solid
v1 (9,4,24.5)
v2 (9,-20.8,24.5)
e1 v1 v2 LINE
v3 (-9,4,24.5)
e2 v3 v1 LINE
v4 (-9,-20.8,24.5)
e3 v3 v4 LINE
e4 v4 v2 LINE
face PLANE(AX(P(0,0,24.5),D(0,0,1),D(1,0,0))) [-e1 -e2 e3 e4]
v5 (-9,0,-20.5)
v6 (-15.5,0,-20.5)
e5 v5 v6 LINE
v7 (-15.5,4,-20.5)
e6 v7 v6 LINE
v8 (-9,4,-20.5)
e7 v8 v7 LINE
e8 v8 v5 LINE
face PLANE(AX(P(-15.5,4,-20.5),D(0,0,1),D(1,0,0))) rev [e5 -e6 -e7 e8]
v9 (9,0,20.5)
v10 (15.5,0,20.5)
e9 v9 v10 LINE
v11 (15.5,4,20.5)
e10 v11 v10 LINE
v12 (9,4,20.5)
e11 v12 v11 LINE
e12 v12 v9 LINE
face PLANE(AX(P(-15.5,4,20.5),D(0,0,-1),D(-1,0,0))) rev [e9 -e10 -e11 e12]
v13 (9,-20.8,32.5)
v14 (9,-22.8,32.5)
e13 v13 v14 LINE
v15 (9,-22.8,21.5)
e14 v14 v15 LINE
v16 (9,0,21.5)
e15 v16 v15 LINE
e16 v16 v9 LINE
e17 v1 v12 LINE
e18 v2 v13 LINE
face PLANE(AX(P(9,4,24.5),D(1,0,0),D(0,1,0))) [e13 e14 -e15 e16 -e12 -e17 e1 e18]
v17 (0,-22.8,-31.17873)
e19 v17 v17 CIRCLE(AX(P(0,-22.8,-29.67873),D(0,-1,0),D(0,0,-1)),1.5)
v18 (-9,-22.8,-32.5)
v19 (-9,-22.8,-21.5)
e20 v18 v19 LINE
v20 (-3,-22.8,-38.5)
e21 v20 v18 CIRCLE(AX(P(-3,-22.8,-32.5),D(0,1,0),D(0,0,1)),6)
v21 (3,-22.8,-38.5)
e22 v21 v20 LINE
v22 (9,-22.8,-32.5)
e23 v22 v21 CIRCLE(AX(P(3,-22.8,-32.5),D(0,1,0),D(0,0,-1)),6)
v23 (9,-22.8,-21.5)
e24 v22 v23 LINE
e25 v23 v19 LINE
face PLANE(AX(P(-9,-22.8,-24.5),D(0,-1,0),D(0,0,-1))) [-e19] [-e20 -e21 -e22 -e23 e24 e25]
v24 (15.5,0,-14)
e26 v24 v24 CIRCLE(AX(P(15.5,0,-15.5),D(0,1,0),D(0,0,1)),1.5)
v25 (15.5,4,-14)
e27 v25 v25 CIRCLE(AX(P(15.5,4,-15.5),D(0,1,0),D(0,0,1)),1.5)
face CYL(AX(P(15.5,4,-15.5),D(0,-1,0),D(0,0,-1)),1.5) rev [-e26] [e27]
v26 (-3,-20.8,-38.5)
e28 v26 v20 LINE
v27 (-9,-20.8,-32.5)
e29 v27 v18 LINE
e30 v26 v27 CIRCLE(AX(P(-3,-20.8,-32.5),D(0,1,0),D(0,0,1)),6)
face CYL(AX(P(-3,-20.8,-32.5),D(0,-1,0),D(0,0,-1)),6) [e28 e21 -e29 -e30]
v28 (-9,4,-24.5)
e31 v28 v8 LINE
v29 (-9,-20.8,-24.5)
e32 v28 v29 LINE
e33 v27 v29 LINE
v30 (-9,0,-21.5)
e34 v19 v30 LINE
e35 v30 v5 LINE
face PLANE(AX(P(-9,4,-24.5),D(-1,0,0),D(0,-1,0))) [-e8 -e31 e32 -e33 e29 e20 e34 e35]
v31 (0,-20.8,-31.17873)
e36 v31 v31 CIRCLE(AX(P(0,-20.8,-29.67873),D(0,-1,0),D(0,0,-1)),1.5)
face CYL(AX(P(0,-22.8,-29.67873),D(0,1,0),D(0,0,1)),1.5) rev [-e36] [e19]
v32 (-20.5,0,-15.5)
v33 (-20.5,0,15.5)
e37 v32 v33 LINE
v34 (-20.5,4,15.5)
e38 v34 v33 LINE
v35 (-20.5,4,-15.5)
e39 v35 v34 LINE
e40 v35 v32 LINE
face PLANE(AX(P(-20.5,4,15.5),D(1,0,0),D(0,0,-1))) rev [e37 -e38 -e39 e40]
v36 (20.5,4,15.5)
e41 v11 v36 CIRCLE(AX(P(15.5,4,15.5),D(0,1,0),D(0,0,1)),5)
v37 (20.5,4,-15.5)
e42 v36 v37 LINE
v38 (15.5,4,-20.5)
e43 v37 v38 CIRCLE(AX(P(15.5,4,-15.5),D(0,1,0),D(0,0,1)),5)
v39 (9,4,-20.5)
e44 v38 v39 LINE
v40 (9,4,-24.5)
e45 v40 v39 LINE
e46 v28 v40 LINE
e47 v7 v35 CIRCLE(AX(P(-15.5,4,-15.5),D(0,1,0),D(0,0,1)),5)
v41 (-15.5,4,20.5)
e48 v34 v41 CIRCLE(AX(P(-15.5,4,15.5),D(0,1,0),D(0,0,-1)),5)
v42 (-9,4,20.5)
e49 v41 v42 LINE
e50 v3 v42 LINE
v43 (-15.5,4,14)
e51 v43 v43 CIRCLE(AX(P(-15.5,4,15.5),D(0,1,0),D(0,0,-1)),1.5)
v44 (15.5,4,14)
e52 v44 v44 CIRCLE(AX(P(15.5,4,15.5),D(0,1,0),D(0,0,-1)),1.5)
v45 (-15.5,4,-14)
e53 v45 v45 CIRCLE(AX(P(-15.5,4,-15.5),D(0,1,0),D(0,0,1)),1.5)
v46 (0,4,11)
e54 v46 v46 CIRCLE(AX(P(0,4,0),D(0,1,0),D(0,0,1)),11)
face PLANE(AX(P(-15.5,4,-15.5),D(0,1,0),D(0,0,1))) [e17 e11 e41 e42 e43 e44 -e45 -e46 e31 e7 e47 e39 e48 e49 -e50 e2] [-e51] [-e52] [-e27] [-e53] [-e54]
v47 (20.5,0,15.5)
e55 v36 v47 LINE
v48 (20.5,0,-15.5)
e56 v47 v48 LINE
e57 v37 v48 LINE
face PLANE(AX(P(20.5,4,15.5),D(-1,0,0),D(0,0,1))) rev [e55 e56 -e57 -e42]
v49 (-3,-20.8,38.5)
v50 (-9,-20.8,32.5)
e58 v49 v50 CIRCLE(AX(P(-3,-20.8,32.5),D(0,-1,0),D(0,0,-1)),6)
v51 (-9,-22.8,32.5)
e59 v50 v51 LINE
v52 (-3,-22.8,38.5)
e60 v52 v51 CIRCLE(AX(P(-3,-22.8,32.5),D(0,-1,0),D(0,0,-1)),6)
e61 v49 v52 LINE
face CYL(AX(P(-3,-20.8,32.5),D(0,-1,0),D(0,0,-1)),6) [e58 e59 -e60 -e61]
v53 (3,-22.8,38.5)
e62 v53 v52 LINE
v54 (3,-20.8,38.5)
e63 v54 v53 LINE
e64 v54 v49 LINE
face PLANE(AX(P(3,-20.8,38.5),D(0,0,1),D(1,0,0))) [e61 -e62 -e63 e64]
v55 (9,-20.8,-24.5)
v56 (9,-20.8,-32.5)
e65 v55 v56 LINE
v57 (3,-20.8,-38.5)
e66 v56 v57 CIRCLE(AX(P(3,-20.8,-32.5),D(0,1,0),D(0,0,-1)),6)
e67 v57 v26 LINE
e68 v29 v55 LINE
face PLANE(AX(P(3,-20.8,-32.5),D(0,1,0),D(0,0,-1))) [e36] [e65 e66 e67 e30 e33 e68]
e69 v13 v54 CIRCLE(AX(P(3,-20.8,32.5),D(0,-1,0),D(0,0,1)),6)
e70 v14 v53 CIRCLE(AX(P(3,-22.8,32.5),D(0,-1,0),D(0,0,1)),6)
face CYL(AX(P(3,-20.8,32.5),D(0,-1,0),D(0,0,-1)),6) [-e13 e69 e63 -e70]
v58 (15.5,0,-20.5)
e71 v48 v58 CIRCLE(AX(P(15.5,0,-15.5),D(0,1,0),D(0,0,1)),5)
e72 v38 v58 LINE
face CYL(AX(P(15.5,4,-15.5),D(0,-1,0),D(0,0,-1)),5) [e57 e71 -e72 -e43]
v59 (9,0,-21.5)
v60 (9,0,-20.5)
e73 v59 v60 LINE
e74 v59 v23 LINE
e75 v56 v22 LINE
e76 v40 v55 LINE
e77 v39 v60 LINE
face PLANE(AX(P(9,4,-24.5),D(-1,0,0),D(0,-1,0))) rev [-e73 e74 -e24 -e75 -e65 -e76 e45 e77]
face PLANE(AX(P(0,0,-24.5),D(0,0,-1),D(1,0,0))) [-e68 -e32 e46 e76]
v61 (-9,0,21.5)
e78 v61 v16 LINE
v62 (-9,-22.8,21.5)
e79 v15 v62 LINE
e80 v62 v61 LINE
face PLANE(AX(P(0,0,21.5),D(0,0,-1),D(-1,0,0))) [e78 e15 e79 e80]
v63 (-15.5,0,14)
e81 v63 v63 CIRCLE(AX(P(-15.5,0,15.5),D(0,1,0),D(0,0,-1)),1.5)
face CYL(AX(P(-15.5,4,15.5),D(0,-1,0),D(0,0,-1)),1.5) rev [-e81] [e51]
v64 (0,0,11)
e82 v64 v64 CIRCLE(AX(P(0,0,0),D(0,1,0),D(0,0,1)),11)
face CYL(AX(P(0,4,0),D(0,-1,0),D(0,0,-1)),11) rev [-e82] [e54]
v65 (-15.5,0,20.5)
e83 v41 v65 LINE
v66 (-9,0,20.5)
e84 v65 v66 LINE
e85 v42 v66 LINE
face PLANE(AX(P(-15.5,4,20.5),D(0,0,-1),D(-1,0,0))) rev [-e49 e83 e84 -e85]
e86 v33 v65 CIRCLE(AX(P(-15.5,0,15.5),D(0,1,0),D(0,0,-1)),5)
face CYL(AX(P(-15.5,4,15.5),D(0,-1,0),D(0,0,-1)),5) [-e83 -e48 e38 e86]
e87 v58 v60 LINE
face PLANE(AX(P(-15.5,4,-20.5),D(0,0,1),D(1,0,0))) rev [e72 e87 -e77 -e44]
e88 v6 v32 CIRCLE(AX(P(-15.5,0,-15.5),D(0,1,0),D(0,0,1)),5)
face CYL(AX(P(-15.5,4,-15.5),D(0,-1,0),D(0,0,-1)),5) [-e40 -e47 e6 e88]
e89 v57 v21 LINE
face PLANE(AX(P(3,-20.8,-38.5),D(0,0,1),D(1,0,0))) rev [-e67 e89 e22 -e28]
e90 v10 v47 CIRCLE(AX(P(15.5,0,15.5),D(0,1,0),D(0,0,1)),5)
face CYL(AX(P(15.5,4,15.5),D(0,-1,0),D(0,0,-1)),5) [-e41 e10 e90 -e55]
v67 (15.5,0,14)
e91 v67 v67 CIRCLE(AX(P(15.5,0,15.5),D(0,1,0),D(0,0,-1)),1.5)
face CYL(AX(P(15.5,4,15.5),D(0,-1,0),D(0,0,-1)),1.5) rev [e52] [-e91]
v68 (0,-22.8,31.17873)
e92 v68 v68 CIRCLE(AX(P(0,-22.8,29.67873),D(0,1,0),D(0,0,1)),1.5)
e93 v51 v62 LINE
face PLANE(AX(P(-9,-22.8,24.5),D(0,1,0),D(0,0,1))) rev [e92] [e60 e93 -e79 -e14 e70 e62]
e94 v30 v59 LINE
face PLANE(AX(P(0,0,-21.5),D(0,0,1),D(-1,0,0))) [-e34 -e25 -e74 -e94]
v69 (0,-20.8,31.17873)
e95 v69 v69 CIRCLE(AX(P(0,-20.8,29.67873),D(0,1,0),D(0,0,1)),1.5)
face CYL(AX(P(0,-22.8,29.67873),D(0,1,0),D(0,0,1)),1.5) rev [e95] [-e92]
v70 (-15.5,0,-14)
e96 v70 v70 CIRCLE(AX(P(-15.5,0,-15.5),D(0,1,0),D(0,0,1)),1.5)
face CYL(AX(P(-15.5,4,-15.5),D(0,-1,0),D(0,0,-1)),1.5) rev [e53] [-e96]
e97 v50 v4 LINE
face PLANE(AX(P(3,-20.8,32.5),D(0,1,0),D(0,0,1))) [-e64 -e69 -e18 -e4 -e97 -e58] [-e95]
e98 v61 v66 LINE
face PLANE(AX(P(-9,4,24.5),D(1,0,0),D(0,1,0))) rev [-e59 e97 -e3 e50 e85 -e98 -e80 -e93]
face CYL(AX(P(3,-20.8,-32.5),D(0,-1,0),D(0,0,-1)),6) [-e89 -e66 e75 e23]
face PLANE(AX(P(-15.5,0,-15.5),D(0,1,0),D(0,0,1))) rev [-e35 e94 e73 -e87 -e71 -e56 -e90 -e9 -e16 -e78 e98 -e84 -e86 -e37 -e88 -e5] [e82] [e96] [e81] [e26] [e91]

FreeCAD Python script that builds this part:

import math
import FreeCAD as App
import Part
import Sketcher

V = App.Vector
Q = App.Units.Quantity

doc = App.newDocument("Part")
body = doc.addObject("PartDesign::Body", "Body")

# Sketch on XZ plane
sketch1 = body.newObject("Sketcher::SketchObject", "Sketch")
sketch1.AttachmentSupport = (doc.getObject("XZ_Plane"), [""])
sketch1.MapMode = "FlatFace"
sketch1.addGeometry([
    Part.LineSegment(V(-15.5, 20.5, 0), V(15.5, 20.5, 0)),  # 0
    Part.ArcOfCircle(Part.Circle(V(15.5, 15.5, 0), V(0, 0, 1), 5), math.radians(0), math.radians(90)),  # 1
    Part.LineSegment(V(20.5, 15.5, 0), V(20.5, -15.5, 0)),  # 2
    Part.ArcOfCircle(Part.Circle(V(15.5, -15.5, 0), V(0, 0, 1), 5), math.radians(-90), math.radians(0)),  # 3
    Part.LineSegment(V(15.5, -20.5, 0), V(-15.5, -20.5, 0)),  # 4
    Part.ArcOfCircle(Part.Circle(V(-15.5, -15.5, 0), V(0, 0, 1), 5), math.radians(180), math.radians(270)),  # 5
    Part.LineSegment(V(-20.5, -15.5, 0), V(-20.5, 15.5, 0)),  # 6
    Part.ArcOfCircle(Part.Circle(V(-15.5, 15.5, 0), V(0, 0, 1), 5), math.radians(90), math.radians(180)),  # 7
    Part.Circle(V(-15.5, 15.5, 0), V(0, 0, 1), 1.5),  # 8
    Part.Circle(V(15.5, 15.5, 0), V(0, 0, 1), 1.5),  # 9
    Part.Circle(V(-15.5, -15.5, 0), V(0, 0, 1), 1.5),  # 10
    Part.Circle(V(0, 0, 0), V(0, 0, 1), 11),  # 11
    Part.Circle(V(15.5, -15.5, 0), V(0, 0, 1), 1.5),  # 12
], False)
sketch1.addConstraint([
    Sketcher.Constraint("Tangent", 0, 2, 1, 2),
    Sketcher.Constraint("Tangent", 1, 1, 2, 1),
    Sketcher.Constraint("Tangent", 2, 2, 3, 2),
    Sketcher.Constraint("Tangent", 3, 1, 4, 1),
    Sketcher.Constraint("Tangent", 4, 2, 5, 2),
    Sketcher.Constraint("Tangent", 5, 1, 6, 1),
    Sketcher.Constraint("Tangent", 6, 2, 7, 2),
    Sketcher.Constraint("Tangent", 7, 1, 0, 1),
    Sketcher.Constraint("Horizontal", 0),
    Sketcher.Constraint("Vertical", 2),
    Sketcher.Constraint("Horizontal", 4),
    Sketcher.Constraint("Vertical", 6),
    Sketcher.Constraint("Coincident", 11, 3, -1, 1),
    Sketcher.Constraint("Coincident", 8, 3, 7, 3),
    Sketcher.Constraint("Coincident", 9, 3, 1, 3),
    Sketcher.Constraint("Coincident", 10, 3, 5, 3),
    Sketcher.Constraint("Coincident", 12, 3, 3, 3),
    Sketcher.Constraint("Equal", 1, 3),
    Sketcher.Constraint("Equal", 3, 5),
    Sketcher.Constraint("Equal", 5, 7),
    Sketcher.Constraint("Equal", 8, 9),
    Sketcher.Constraint("Equal", 9, 10),
    Sketcher.Constraint("Equal", 10, 12),
    Sketcher.Constraint("Symmetric", 1, 3, 5, 3, -1, 1),
    Sketcher.Constraint("Equal", 4, 2),
    Sketcher.Constraint("Diameter", 8, Q("3 mm")),
    Sketcher.Constraint("Diameter", 11, Q("22 mm")),
    Sketcher.Constraint("Radius", 1, Q("5 mm")),
    Sketcher.Constraint("DistanceX", 0, 1, 0, 2, Q("31 mm")),
])
pad1 = body.newObject("PartDesign::Pad", "Pad")
pad1.Profile = sketch1
pad1.Length = 4
pad1.Reversed = True

# Sketch on XY plane
sketch2 = body.newObject("Sketcher::SketchObject", "Sketch001")
sketch2.AttachmentSupport = (doc.getObject("XY_Plane"), [""])
sketch2.MapMode = "FlatFace"
sketch2.AttachmentOffset = App.Placement(V(0, 0, 20.5), App.Rotation())
sketch2.addGeometry([
    Part.LineSegment(V(-9, 4, 0), V(-9, -23, 0)),
    Part.LineSegment(V(-9, -23, 0), V(9, -23, 0)),
    Part.LineSegment(V(9, -23, 0), V(9, 4, 0)),
    Part.LineSegment(V(9, 4, 0), V(-9, 4, 0)),
], False)
sketch2.addConstraint([
    Sketcher.Constraint("Coincident", 0, 2, 1, 1),
    Sketcher.Constraint("Coincident", 1, 2, 2, 1),
    Sketcher.Constraint("Coincident", 2, 2, 3, 1),
    Sketcher.Constraint("Coincident", 3, 2, 0, 1),
    Sketcher.Constraint("Vertical", 0),
    Sketcher.Constraint("Horizontal", 1),
    Sketcher.Constraint("Vertical", 2),
    Sketcher.Constraint("Horizontal", 3),
    Sketcher.Constraint("DistanceX", 1, 1, 1, 2, Q("18 mm")),
    Sketcher.Constraint("DistanceY", 0, 2, 0, 1, Q("26.8 mm")),
    Sketcher.Constraint("DistanceX", 0, 2, -1, 1, Q("9 mm")),
    Sketcher.Constraint("DistanceY", -1, 1, 2, 2, Q("4 mm")),
])
pad2 = body.newObject("PartDesign::Pad", "Pad001")
pad2.Profile = sketch2
pad2.Length = 4

# Sketch on XZ plane
sketch3 = body.newObject("Sketcher::SketchObject", "Sketch002")
sketch3.AttachmentSupport = (doc.getObject("XZ_Plane"), [""])
sketch3.MapMode = "FlatFace"
sketch3.AttachmentOffset = App.Placement(V(0, 0, 22.8), App.Rotation())
sketch3.addGeometry([
    Part.LineSegment(V(-9, 24, 0), V(9, 24, 0)),  # 0
    Part.LineSegment(V(9, 24, 0), V(9, 32, 0)),  # 1
    Part.ArcOfCircle(Part.Circle(V(3, 32, 0), V(0, 0, 1), 6), math.radians(0), math.radians(90)),  # 2
    Part.LineSegment(V(3, 38, 0), V(-3, 38, 0)),  # 3
    Part.ArcOfCircle(Part.Circle(V(-3, 32, 0), V(0, 0, 1), 6), math.radians(90), math.radians(180)),  # 4
    Part.LineSegment(V(-9, 32, 0), V(-9, 24, 0)),  # 5
], False)
sketch3.addConstraint([
    Sketcher.Constraint("Coincident", 0, 2, 1, 1),
    Sketcher.Constraint("Tangent", 1, 2, 2, 1),
    Sketcher.Constraint("Tangent", 2, 2, 3, 1),
    Sketcher.Constraint("Tangent", 3, 2, 4, 1),
    Sketcher.Constraint("Tangent", 4, 2, 5, 1),
    Sketcher.Constraint("Coincident", 5, 2, 0, 1),
    Sketcher.Constraint("Horizontal", 0),
    Sketcher.Constraint("Vertical", 1),
    Sketcher.Constraint("Horizontal", 3),
    Sketcher.Constraint("Vertical", 5),
    Sketcher.Constraint("Equal", 2, 4),
    Sketcher.Constraint("Radius", 2, Q("6 mm")),
    Sketcher.Constraint("DistanceX", 0, 1, 0, 2, Q("18 mm")),
    Sketcher.Constraint("DistanceY", 1, 1, 1, 2, Q("8 mm")),
    Sketcher.Constraint("DistanceX", -1, 1, 2, 3, Q("3 mm")),
    Sketcher.Constraint("DistanceY", -1, 1, 2, 3, Q("32.5 mm")),
])
pad3 = body.newObject("PartDesign::Pad", "Pad002")
pad3.Profile = sketch3
pad3.Length = 2
pad3.Reversed = True

# Sketch on XZ plane
sketch4 = body.newObject("Sketcher::SketchObject", "Sketch003")
sketch4.AttachmentSupport = (doc.getObject("XZ_Plane"), [""])
sketch4.MapMode = "FlatFace"
sketch4.AttachmentOffset = App.Placement(V(0, 0, 20.8), App.Rotation())
sketch4.addGeometry(Part.Circle(V(0, 29.7, 0), V(0, 0, 1), 1.5), False)
sketch4.addConstraint([
    Sketcher.Constraint("PointOnObject", 0, 3, -2),
    Sketcher.Constraint("Diameter", 0, Q("3 mm")),
    Sketcher.Constraint("DistanceY", -1, 1, 0, 3, Q("29.67873 mm")),
])
pocket1 = body.newObject("PartDesign::Pocket", "Pocket")
pocket1.Profile = sketch4
pocket1.Type = "ThroughAll"
pocket1.Reversed = True

# Sketch on XY plane
sketch5 = body.newObject("Sketcher::SketchObject", "Sketch004")
sketch5.AttachmentSupport = (doc.getObject("XY_Plane"), [""])
sketch5.MapMode = "FlatFace"
sketch5.AttachmentOffset = App.Placement(V(0, 0, 20.5), App.Rotation())
sketch5.addGeometry([
    Part.LineSegment(V(9, 0, 0), V(9, -23, 0)),
    Part.LineSegment(V(9, -23, 0), V(-9, -23, 0)),
    Part.LineSegment(V(-9, -23, 0), V(-9, 0, 0)),
    Part.LineSegment(V(-9, 0, 0), V(9, 0, 0)),
], False)
sketch5.addConstraint([
    Sketcher.Constraint("Coincident", 0, 2, 1, 1),
    Sketcher.Constraint("Coincident", 1, 2, 2, 1),
    Sketcher.Constraint("Coincident", 2, 2, 3, 1),
    Sketcher.Constraint("Coincident", 3, 2, 0, 1),
    Sketcher.Constraint("Vertical", 0),
    Sketcher.Constraint("Horizontal", 1),
    Sketcher.Constraint("Vertical", 2),
    Sketcher.Constraint("Horizontal", 3),
    Sketcher.Constraint("Symmetric", 2, 2, 3, 2, -1, 1),
    Sketcher.Constraint("DistanceX", 1, 2, 1, 1, Q("18 mm")),
    Sketcher.Constraint("DistanceY", 0, 2, 0, 1, Q("22.8 mm")),
])
pocket2 = body.newObject("PartDesign::Pocket", "Pocket001")
pocket2.Profile = sketch5
pocket2.Length = 1
pocket2.Reversed = True
doc.recompute()

mirrored = body.newObject("PartDesign::Mirrored", "Mirrored")
mirrored.Originals = [pad2, pad3, pocket1, pocket2]
mirrored.MirrorPlane = (doc.getObject("XY_Plane"), [""])
body.Tip = mirrored

doc.recompute()
